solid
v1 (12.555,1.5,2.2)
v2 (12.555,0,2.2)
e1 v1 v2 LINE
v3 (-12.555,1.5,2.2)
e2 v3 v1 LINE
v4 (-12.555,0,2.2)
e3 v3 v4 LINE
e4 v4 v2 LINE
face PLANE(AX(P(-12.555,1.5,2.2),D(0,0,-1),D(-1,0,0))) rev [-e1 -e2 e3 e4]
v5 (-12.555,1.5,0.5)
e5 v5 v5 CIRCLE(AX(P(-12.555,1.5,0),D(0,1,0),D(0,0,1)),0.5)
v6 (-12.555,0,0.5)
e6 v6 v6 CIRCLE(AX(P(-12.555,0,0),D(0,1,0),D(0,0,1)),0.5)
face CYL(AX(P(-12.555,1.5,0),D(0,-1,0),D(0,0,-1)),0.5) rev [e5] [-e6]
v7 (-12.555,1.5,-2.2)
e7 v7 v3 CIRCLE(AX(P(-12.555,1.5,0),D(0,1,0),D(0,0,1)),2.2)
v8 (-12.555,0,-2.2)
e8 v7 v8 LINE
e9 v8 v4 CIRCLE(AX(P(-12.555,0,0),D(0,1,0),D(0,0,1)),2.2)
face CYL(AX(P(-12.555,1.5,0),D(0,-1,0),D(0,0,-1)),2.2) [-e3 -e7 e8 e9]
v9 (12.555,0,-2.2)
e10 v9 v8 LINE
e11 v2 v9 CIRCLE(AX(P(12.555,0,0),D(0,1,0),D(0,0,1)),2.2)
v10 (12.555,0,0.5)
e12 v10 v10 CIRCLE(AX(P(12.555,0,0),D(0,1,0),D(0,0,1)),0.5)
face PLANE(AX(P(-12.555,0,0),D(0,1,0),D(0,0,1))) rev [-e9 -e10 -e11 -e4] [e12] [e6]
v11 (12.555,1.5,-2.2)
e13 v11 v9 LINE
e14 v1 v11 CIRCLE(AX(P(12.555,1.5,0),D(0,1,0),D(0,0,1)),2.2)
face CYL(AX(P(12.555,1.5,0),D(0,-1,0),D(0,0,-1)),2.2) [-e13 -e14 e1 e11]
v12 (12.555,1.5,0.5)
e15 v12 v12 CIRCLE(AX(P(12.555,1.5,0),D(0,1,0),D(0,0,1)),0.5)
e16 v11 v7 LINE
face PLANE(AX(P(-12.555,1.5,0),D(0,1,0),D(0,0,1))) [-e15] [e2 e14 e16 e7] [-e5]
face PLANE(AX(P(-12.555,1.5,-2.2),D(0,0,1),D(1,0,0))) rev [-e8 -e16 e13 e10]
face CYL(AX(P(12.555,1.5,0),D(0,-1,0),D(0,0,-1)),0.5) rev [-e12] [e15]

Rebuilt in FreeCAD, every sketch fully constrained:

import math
import FreeCAD as App
import Part
import Sketcher

V = App.Vector

doc = App.newDocument("Part")
body = doc.addObject("PartDesign::Body", "Body")

sketch1 = body.newObject("Sketcher::SketchObject", "Sketch")
sketch1.AttachmentSupport = (doc.getObject("XZ_Plane"), [""])
sketch1.MapMode = "FlatFace"
sketch1.addGeometry(Part.LineSegment(V(12.6, -2.2, 0), V(-12.6, -2.2, 0)), False)
sketch1.addGeometry(Part.ArcOfCircle(Part.Circle(V(-12.6, 0, 0), V(0, 0, 1), 2.2), math.radians(90), math.radians(270)), False)
sketch1.addGeometry(Part.LineSegment(V(-12.6, 2.2, 0), V(12.6, 2.2, 0)), False)
sketch1.addGeometry(Part.ArcOfCircle(Part.Circle(V(12.6, 0, 0), V(0, 0, 1), 2.2), math.radians(-90), math.radians(90)), False)
sketch1.addGeometry(Part.Circle(V(12.6, 0, 0), V(0, 0, 1), 0.5), False)
sketch1.addGeometry(Part.Circle(V(-12.6, 0, 0), V(0, 0, 1), 0.5), False)
sketch1.addConstraint(Sketcher.Constraint("Tangent", 0, 2, 1, 2))
sketch1.addConstraint(Sketcher.Constraint("Tangent", 1, 1, 2, 1))
sketch1.addConstraint(Sketcher.Constraint("Tangent", 2, 2, 3, 2))
sketch1.addConstraint(Sketcher.Constraint("Tangent", 3, 1, 0, 1))
sketch1.addConstraint(Sketcher.Constraint("Horizontal", 0))
sketch1.addConstraint(Sketcher.Constraint("Horizontal", 2))
sketch1.addConstraint(Sketcher.Constraint("Coincident", 4, 3, 3, 3))
sketch1.addConstraint(Sketcher.Constraint("Coincident", 5, 3, 1, 3))
sketch1.addConstraint(Sketcher.Constraint("Equal", 4, 5))
sketch1.addConstraint(Sketcher.Constraint("Symmetric", 1, 3, 3, 3, -1, 1))
sketch1.addConstraint(Sketcher.Constraint("Diameter", 4, 1.0))
sketch1.addConstraint(Sketcher.Constraint("Radius", 1, 2.2))
sketch1.addConstraint(Sketcher.Constraint("DistanceX", 0, 2, 0, 1, 25.11))
pad1 = body.newObject("PartDesign::Pad", "Pad")
pad1.Profile = sketch1
pad1.Length = 1.5
pad1.Reversed = True

doc.recompute()
